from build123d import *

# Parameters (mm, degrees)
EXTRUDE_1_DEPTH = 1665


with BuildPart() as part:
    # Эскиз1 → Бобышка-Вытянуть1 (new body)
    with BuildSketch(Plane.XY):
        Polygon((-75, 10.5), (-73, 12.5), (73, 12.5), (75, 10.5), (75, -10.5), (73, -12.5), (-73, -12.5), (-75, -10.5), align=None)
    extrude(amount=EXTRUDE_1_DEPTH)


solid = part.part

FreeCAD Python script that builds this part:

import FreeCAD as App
import Part
import Sketcher
Q = App.Units.Quantity

doc = App.newDocument("Part")
body = doc.addObject("PartDesign::Body", "Body")

# Sketch on XY plane
sketch1 = body.newObject("Sketcher::SketchObject", "Sketch")
sketch1.AttachmentSupport = (doc.getObject("XY_Plane"), [""])
sketch1.MapMode = "FlatFace"
sketch1.addGeometry(Part.LineSegment(App.Vector(-73, 12.5, 0), App.Vector(-75, 10.5, 0)), False)
sketch1.addGeometry(Part.LineSegment(App.Vector(-75, 10.5, 0), App.Vector(-75, -10.5, 0)), False)
sketch1.addGeometry(Part.LineSegment(App.Vector(-75, -10.5, 0), App.Vector(-73, -12.5, 0)), False)
sketch1.addGeometry(Part.LineSegment(App.Vector(-73, -12.5, 0), App.Vector(73, -12.5, 0)), False)
sketch1.addGeometry(Part.LineSegment(App.Vector(73, -12.5, 0), App.Vector(75, -10.5, 0)), False)
sketch1.addGeometry(Part.LineSegment(App.Vector(75, -10.5, 0), App.Vector(75, 10.5, 0)), False)
sketch1.addGeometry(Part.LineSegment(App.Vector(75, 10.5, 0), App.Vector(73, 12.5, 0)), False)
sketch1.addGeometry(Part.LineSegment(App.Vector(73, 12.5, 0), App.Vector(-73, 12.5, 0)), False)
sketch1.addConstraint(Sketcher.Constraint("Coincident", 0, 2, 1, 1))
sketch1.addConstraint(Sketcher.Constraint("Coincident", 1, 2, 2, 1))
sketch1.addConstraint(Sketcher.Constraint("Coincident", 2, 2, 3, 1))
sketch1.addConstraint(Sketcher.Constraint("Coincident", 3, 2, 4, 1))
sketch1.addConstraint(Sketcher.Constraint("Coincident", 4, 2, 5, 1))
sketch1.addConstraint(Sketcher.Constraint("Coincident", 5, 2, 6, 1))
sketch1.addConstraint(Sketcher.Constraint("Coincident", 6, 2, 7, 1))
sketch1.addConstraint(Sketcher.Constraint("Coincident", 7, 2, 0, 1))
sketch1.addConstraint(Sketcher.Constraint("Vertical", 1))
sketch1.addConstraint(Sketcher.Constraint("Horizontal", 3))
sketch1.addConstraint(Sketcher.Constraint("Vertical", 5))
sketch1.addConstraint(Sketcher.Constraint("Horizontal", 7))
sketch1.addConstraint(Sketcher.Constraint("Symmetric", 0, 2, 4, 2, -1, 1))
sketch1.addConstraint(Sketcher.Constraint("Symmetric", 2, 2, 6, 2, -1, 1))
sketch1.addConstraint(Sketcher.Constraint("Perpendicular", 0, 2))
sketch1.addConstraint(Sketcher.Constraint("Perpendicular", 2, 4))
sketch1.addConstraint(Sketcher.Constraint("Perpendicular", 4, 6))
sketch1.addConstraint(Sketcher.Constraint("Horizontal", 1, 2, 4, 2))
sketch1.addConstraint(Sketcher.Constraint("Vertical", 3, 2, 6, 2))
sketch1.addConstraint(Sketcher.Constraint("DistanceX", 3, 1, 3, 2, Q("146 mm")))
sketch1.addConstraint(Sketcher.Constraint("DistanceY", 1, 2, 1, 1, Q("21 mm")))
sketch1.addConstraint(Sketcher.Constraint("DistanceX", 0, 2, -1, 1, Q("75 mm")))
pad1 = body.newObject("PartDesign::Pad", "Pad")
pad1.Profile = sketch1
pad1.Length = 1665

doc.recompute()
